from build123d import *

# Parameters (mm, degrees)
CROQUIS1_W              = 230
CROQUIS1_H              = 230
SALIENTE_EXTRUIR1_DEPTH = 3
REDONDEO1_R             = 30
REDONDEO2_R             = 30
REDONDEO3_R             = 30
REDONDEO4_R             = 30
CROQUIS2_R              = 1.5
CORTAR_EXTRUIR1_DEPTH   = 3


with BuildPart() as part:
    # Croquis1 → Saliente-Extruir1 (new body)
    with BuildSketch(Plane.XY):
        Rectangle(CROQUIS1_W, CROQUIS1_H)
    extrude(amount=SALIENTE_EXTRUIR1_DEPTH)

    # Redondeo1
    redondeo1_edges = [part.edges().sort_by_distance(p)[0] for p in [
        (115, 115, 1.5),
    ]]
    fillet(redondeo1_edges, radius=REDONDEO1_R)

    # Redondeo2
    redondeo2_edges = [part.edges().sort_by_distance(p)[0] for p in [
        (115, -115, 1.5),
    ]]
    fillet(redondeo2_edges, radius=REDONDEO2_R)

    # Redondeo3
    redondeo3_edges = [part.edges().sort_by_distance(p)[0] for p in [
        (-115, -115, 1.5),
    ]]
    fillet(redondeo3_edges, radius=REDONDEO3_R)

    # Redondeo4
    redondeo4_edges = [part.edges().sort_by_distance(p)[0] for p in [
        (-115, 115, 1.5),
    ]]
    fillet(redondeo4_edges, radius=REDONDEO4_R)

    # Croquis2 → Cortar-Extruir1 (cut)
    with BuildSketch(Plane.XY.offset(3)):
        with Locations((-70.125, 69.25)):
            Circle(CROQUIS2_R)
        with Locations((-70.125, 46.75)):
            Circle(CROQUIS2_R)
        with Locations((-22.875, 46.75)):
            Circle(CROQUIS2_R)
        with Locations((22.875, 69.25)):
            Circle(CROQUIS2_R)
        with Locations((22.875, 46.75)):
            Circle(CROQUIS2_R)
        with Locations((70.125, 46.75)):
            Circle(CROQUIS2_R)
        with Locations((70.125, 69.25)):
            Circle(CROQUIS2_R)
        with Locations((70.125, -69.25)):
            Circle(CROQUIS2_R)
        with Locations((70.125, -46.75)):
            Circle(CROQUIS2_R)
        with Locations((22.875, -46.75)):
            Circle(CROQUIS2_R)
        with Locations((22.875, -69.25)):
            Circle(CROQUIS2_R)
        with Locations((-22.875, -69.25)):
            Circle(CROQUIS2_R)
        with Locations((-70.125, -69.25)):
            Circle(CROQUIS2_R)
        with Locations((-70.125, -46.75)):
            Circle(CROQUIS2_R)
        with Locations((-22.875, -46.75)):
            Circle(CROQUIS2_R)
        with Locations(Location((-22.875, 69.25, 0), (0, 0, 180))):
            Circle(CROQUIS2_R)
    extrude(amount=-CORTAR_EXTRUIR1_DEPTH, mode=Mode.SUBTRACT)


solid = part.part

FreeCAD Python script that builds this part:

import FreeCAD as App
import Part
import Sketcher


def edges_at(feature, points):
    """Names of the edges that pass closest to the given points."""
    edges = feature.Shape.Edges
    near = lambda p: min(range(len(edges)), key=lambda i: edges[i].distToShape(Part.Vertex(*p))[0])
    return sorted({f"Edge{near(p) + 1}" for p in points})


def add_polygon(sketch, points):
    """Adds a closed chain of lines whose ends are joined by coincident constraints."""
    first, n = sketch.GeometryCount, len(points)
    for a, b in zip(points, points[1:] + points[:1]):
        sketch.addGeometry(Part.LineSegment(App.Vector(*a, 0), App.Vector(*b, 0)), False)
    for i in range(n):
        sketch.addConstraint(Sketcher.Constraint("Coincident", first + i, 2, first + (i + 1) % n, 1))

doc = App.newDocument("Part")
body = doc.addObject("PartDesign::Body", "Body")

sketch1 = body.newObject("Sketcher::SketchObject", "Sketch")
sketch1.AttachmentSupport = (doc.getObject("XY_Plane"), [""])
sketch1.MapMode = "FlatFace"
add_polygon(sketch1, [(-115, 115), (-115, -115), (115, -115), (115, 115)])
sketch1.addConstraint(Sketcher.Constraint("Vertical", 0))
sketch1.addConstraint(Sketcher.Constraint("Horizontal", 1))
sketch1.addConstraint(Sketcher.Constraint("Vertical", 2))
sketch1.addConstraint(Sketcher.Constraint("Horizontal", 3))
sketch1.addConstraint(Sketcher.Constraint("Symmetric", 0, 2, 2, 2, -1, 1))
sketch1.addConstraint(Sketcher.Constraint("Equal", 3, 0))
sketch1.addConstraint(Sketcher.Constraint("DistanceX", 1, 1, 1, 2, 230.0))
pad1 = body.newObject("PartDesign::Pad", "Pad")
pad1.Profile = sketch1
pad1.Length = 3
doc.recompute()

fillet = body.newObject("PartDesign::Fillet", "Fillet")
fillet.Base = (pad1, edges_at(pad1, [(115, 115, 1.5)]))
fillet.Radius = 30
doc.recompute()

fillet2 = body.newObject("PartDesign::Fillet", "Fillet001")
fillet2.Base = (fillet, edges_at(fillet, [(115, -115, 1.5)]))
fillet2.Radius = 30
doc.recompute()

fillet3 = body.newObject("PartDesign::Fillet", "Fillet002")
fillet3.Base = (fillet2, edges_at(fillet2, [(-115, -115, 1.5)]))
fillet3.Radius = 30
doc.recompute()

fillet4 = body.newObject("PartDesign::Fillet", "Fillet003")
fillet4.Base = (fillet3, edges_at(fillet3, [(-115, 115, 1.5)]))
fillet4.Radius = 30

sketch2 = body.newObject("Sketcher::SketchObject", "Sketch001")
sketch2.AttachmentSupport = (doc.getObject("XY_Plane"), [""])
sketch2.MapMode = "FlatFace"
sketch2.AttachmentOffset = App.Placement(App.Vector(0, 0, 3), App.Rotation())
sketch2.addGeometry(Part.Circle(App.Vector(-70.125, 69.25, 0), App.Vector(0, 0, 1), 1.5), False)
sketch2.addGeometry(Part.Circle(App.Vector(-70.125, 46.75, 0), App.Vector(0, 0, 1), 1.5), False)
sketch2.addGeometry(Part.Circle(App.Vector(-22.875, 46.75, 0), App.Vector(0, 0, 1), 1.5), False)
sketch2.addGeometry(Part.Circle(App.Vector(22.875, 69.25, 0), App.Vector(0, 0, 1), 1.5), False)
sketch2.addGeometry(Part.Circle(App.Vector(22.875, 46.75, 0), App.Vector(0, 0, 1), 1.5), False)
sketch2.addGeometry(Part.Circle(App.Vector(70.125, 46.75, 0), App.Vector(0, 0, 1), 1.5), False)
sketch2.addGeometry(Part.Circle(App.Vector(70.125, 69.25, 0), App.Vector(0, 0, 1), 1.5), False)
sketch2.addGeometry(Part.Circle(App.Vector(70.125, -69.25, 0), App.Vector(0, 0, 1), 1.5), False)
sketch2.addGeometry(Part.Circle(App.Vector(70.125, -46.75, 0), App.Vector(0, 0, 1), 1.5), False)
sketch2.addGeometry(Part.Circle(App.Vector(22.875, -46.75, 0), App.Vector(0, 0, 1), 1.5), False)
sketch2.addGeometry(Part.Circle(App.Vector(22.875, -69.25, 0), App.Vector(0, 0, 1), 1.5), False)
sketch2.addGeometry(Part.Circle(App.Vector(-22.875, -69.25, 0), App.Vector(0, 0, 1), 1.5), False)
sketch2.addGeometry(Part.Circle(App.Vector(-70.125, -69.25, 0), App.Vector(0, 0, 1), 1.5), False)
sketch2.addGeometry(Part.Circle(App.Vector(-70.125, -46.75, 0), App.Vector(0, 0, 1), 1.5), False)
sketch2.addGeometry(Part.Circle(App.Vector(-22.875, -46.75, 0), App.Vector(0, 0, 1), 1.5), False)
sketch2.addGeometry(Part.Circle(App.Vector(-22.875, 69.25, 0), App.Vector(0, 0, 1), 1.5), False)
sketch2.addConstraint(Sketcher.Constraint("Equal", 0, 1))
sketch2.addConstraint(Sketcher.Constraint("Equal", 1, 2))
sketch2.addConstraint(Sketcher.Constraint("Equal", 2, 3))
sketch2.addConstraint(Sketcher.Constraint("Equal", 3, 4))
sketch2.addConstraint(Sketcher.Constraint("Equal", 4, 5))
sketch2.addConstraint(Sketcher.Constraint("Equal", 5, 6))
sketch2.addConstraint(Sketcher.Constraint("Equal", 6, 7))
sketch2.addConstraint(Sketcher.Constraint("Equal", 7, 8))
sketch2.addConstraint(Sketcher.Constraint("Equal", 8, 9))
sketch2.addConstraint(Sketcher.Constraint("Equal", 9, 10))
sketch2.addConstraint(Sketcher.Constraint("Equal", 10, 11))
sketch2.addConstraint(Sketcher.Constraint("Equal", 11, 12))
sketch2.addConstraint(Sketcher.Constraint("Equal", 12, 13))
sketch2.addConstraint(Sketcher.Constraint("Equal", 13, 14))
sketch2.addConstraint(Sketcher.Constraint("Equal", 14, 15))
sketch2.addConstraint(Sketcher.Constraint("Symmetric", 0, 3, 7, 3, -1, 1))
sketch2.addConstraint(Sketcher.Constraint("Symmetric", 1, 3, 8, 3, -1, 1))
sketch2.addConstraint(Sketcher.Constraint("Symmetric", 2, 3, 9, 3, -1, 1))
sketch2.addConstraint(Sketcher.Constraint("Symmetric", 3, 3, 11, 3, -1, 1))
sketch2.addConstraint(Sketcher.Constraint("Symmetric", 6, 3, 12, 3, -1, 1))
sketch2.addConstraint(Sketcher.Constraint("Symmetric", 5, 3, 13, 3, -1, 1))
sketch2.addConstraint(Sketcher.Constraint("Symmetric", 4, 3, 14, 3, -1, 1))
sketch2.addConstraint(Sketcher.Constraint("Symmetric", 10, 3, 15, 3, -1, 1))
sketch2.addConstraint(Sketcher.Constraint("Symmetric", 2, 3, 4, 3, -2))
sketch2.addConstraint(Sketcher.Constraint("Symmetric", 1, 3, 5, 3, -2))
sketch2.addConstraint(Sketcher.Constraint("Symmetric", 0, 3, 6, 3, -2))
sketch2.addConstraint(Sketcher.Constraint("Symmetric", 10, 3, 11, 3, -2))
sketch2.addConstraint(Sketcher.Constraint("Horizontal", 1, 3, 2, 3))
sketch2.addConstraint(Sketcher.Constraint("Horizontal", 0, 3, 3, 3))
sketch2.addConstraint(Sketcher.Constraint("Vertical", 0, 3, 1, 3))
sketch2.addConstraint(Sketcher.Constraint("Vertical", 3, 3, 4, 3))
sketch2.addConstraint(Sketcher.Constraint("Diameter", 0, 3.0))
sketch2.addConstraint(Sketcher.Constraint("DistanceX", 0, 3, 3, 3, 93.0))
sketch2.addConstraint(Sketcher.Constraint("DistanceY", 7, 3, 5, 3, 116.0))
sketch2.addConstraint(Sketcher.Constraint("DistanceY", 1, 3, 0, 3, 22.5))
sketch2.addConstraint(Sketcher.Constraint("DistanceX", 1, 3, 2, 3, 47.25))
pocket1 = body.newObject("PartDesign::Pocket", "Pocket")
pocket1.Profile = sketch2
pocket1.Length = 3

doc.recompute()
